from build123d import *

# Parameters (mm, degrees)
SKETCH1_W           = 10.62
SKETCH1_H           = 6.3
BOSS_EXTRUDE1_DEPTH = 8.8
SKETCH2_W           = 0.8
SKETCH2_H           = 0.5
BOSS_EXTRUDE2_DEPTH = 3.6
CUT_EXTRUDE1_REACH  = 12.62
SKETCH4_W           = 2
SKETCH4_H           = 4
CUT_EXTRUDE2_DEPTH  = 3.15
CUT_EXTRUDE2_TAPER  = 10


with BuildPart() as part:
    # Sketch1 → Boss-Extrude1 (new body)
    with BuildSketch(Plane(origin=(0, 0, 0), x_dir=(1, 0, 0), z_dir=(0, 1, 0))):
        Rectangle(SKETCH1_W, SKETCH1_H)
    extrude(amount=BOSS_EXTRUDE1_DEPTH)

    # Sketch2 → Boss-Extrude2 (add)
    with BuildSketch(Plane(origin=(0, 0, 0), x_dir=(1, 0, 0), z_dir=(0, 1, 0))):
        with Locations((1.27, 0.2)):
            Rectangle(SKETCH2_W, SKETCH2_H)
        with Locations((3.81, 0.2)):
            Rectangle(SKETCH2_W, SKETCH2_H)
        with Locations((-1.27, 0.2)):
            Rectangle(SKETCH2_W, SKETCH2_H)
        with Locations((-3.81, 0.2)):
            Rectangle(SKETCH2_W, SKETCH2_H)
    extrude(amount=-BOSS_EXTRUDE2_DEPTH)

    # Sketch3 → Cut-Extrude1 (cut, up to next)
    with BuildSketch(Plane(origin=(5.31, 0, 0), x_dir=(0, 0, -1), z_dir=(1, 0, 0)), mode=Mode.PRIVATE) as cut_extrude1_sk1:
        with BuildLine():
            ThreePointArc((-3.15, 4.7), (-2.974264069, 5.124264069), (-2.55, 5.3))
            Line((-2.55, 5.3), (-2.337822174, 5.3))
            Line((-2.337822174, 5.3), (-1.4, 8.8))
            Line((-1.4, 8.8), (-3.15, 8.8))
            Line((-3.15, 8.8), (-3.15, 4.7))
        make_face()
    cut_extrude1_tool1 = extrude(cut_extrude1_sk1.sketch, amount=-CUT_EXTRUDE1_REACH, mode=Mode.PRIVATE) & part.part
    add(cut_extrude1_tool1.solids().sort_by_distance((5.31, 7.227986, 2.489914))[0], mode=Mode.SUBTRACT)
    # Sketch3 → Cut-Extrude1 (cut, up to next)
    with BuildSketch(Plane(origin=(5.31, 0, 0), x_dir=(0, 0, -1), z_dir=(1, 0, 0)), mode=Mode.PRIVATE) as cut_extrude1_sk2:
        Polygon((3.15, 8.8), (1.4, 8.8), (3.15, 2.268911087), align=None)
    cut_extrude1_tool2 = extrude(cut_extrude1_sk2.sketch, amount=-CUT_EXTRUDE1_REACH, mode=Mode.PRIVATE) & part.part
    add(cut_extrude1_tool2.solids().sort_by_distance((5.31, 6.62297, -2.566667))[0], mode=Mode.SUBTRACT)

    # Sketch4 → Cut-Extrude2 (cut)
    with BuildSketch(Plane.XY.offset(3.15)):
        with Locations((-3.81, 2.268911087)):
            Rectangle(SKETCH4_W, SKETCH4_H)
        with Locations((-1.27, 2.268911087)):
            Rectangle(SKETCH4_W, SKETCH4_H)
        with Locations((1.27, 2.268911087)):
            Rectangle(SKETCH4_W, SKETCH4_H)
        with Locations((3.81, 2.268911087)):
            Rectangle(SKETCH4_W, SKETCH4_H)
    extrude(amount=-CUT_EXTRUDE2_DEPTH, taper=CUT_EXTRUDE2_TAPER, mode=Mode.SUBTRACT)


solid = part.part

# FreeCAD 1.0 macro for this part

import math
import FreeCAD as App
import Part
import Sketcher

V = App.Vector
Q = App.Units.Quantity

doc = App.newDocument("Part")
params = doc.addObject("Spreadsheet::Sheet", "Params")
for row, (alias, value) in enumerate([
    ("sketch1_height", "6.3 mm"),
    ("sketch1_width", "10.62 mm"),
    ("pad1_length", "8.8 mm"),
    ("sketch2_width", "0.8 mm"),
    ("sketch2_height", "0.5 mm"),
    ("pad2_length", "3.6 mm"),
    ("sketch3_radius", "0.6 mm"),
    ("sketch3_width", "4.1 mm"),
    ("sketch3_height", "1.75 mm"),
    ("sketch4_height", "1.75 mm"),
    ("sketch5_width", "2 mm"),
    ("sketch5_height", "4 mm"),
    ("pocket3_length", "3.15 mm"),
    ("pocket3_taper", "-10 deg"),
], start=1):
    params.set(f"A{row}", alias)
    params.set(f"B{row}", "=" + value)
    params.setAlias(f"B{row}", alias)

body = doc.addObject("PartDesign::Body", "Body")

# Sketch on XZ plane
sketch1 = body.newObject("Sketcher::SketchObject", "Sketch")
sketch1.AttachmentSupport = (doc.getObject("XZ_Plane"), [""])
sketch1.MapMode = "FlatFace"
sketch1.addGeometry([
    Part.LineSegment(V(-5.31, -3.15, 0), V(-5.31, 3.15, 0)),
    Part.LineSegment(V(-5.31, 3.15, 0), V(5.31, 3.15, 0)),
    Part.LineSegment(V(5.31, 3.15, 0), V(5.31, -3.15, 0)),
    Part.LineSegment(V(5.31, -3.15, 0), V(-5.31, -3.15, 0)),
], False)
sketch1.addConstraint([
    Sketcher.Constraint("Coincident", 0, 2, 1, 1),
    Sketcher.Constraint("Coincident", 1, 2, 2, 1),
    Sketcher.Constraint("Coincident", 2, 2, 3, 1),
    Sketcher.Constraint("Coincident", 3, 2, 0, 1),
    Sketcher.Constraint("Vertical", 0),
    Sketcher.Constraint("Horizontal", 1),
    Sketcher.Constraint("Vertical", 2),
    Sketcher.Constraint("Horizontal", 3),
    Sketcher.Constraint("Symmetric", 0, 2, 2, 2, -1, 1),
    Sketcher.Constraint("DistanceY", 0, 1, 0, 2, Q("6.3 mm")),
    Sketcher.Constraint("DistanceX", 1, 1, 1, 2, Q("10.62 mm")),
])
sketch1.setExpression("Constraints[9]", "Params.sketch1_height")
sketch1.setExpression("Constraints[10]", "Params.sketch1_width")
pad1 = body.newObject("PartDesign::Pad", "Pad")
pad1.Profile = sketch1
pad1.setExpression("Length", "Params.pad1_length")
pad1.Reversed = True

# Sketch on XZ plane
sketch2 = body.newObject("Sketcher::SketchObject", "Sketch001")
sketch2.AttachmentSupport = (doc.getObject("XZ_Plane"), [""])
sketch2.MapMode = "FlatFace"
sketch2.addGeometry([
    Part.LineSegment(V(0.87, -0.45, 0), V(0.87, 0.05, 0)),  # 0
    Part.LineSegment(V(0.87, 0.05, 0), V(1.67, 0.05, 0)),  # 1
    Part.LineSegment(V(1.67, 0.05, 0), V(1.67, -0.45, 0)),  # 2
    Part.LineSegment(V(1.67, -0.45, 0), V(0.87, -0.45, 0)),  # 3
    Part.LineSegment(V(3.41, -0.45, 0), V(3.41, 0.05, 0)),  # 4
    Part.LineSegment(V(3.41, 0.05, 0), V(4.21, 0.05, 0)),  # 5
    Part.LineSegment(V(4.21, 0.05, 0), V(4.21, -0.45, 0)),  # 6
    Part.LineSegment(V(4.21, -0.45, 0), V(3.41, -0.45, 0)),  # 7
    Part.LineSegment(V(-1.67, -0.45, 0), V(-1.67, 0.05, 0)),  # 8
    Part.LineSegment(V(-1.67, 0.05, 0), V(-0.87, 0.05, 0)),  # 9
    Part.LineSegment(V(-0.87, 0.05, 0), V(-0.87, -0.45, 0)),  # 10
    Part.LineSegment(V(-0.87, -0.45, 0), V(-1.67, -0.45, 0)),  # 11
    Part.LineSegment(V(-4.21, -0.45, 0), V(-4.21, 0.05, 0)),  # 12
    Part.LineSegment(V(-4.21, 0.05, 0), V(-3.41, 0.05, 0)),  # 13
    Part.LineSegment(V(-3.41, 0.05, 0), V(-3.41, -0.45, 0)),  # 14
    Part.LineSegment(V(-3.41, -0.45, 0), V(-4.21, -0.45, 0)),  # 15
], False)
sketch2.addConstraint([
    Sketcher.Constraint("Coincident", 0, 2, 1, 1),
    Sketcher.Constraint("Coincident", 1, 2, 2, 1),
    Sketcher.Constraint("Coincident", 2, 2, 3, 1),
    Sketcher.Constraint("Coincident", 3, 2, 0, 1),
    Sketcher.Constraint("Coincident", 4, 2, 5, 1),
    Sketcher.Constraint("Coincident", 5, 2, 6, 1),
    Sketcher.Constraint("Coincident", 6, 2, 7, 1),
    Sketcher.Constraint("Coincident", 7, 2, 4, 1),
    Sketcher.Constraint("Coincident", 8, 2, 9, 1),
    Sketcher.Constraint("Coincident", 9, 2, 10, 1),
    Sketcher.Constraint("Coincident", 10, 2, 11, 1),
    Sketcher.Constraint("Coincident", 11, 2, 8, 1),
    Sketcher.Constraint("Coincident", 12, 2, 13, 1),
    Sketcher.Constraint("Coincident", 13, 2, 14, 1),
    Sketcher.Constraint("Coincident", 14, 2, 15, 1),
    Sketcher.Constraint("Coincident", 15, 2, 12, 1),
    Sketcher.Constraint("Vertical", 0),
    Sketcher.Constraint("Horizontal", 1),
    Sketcher.Constraint("Vertical", 2),
    Sketcher.Constraint("Horizontal", 3),
    Sketcher.Constraint("Vertical", 4),
    Sketcher.Constraint("Horizontal", 5),
    Sketcher.Constraint("Vertical", 6),
    Sketcher.Constraint("Horizontal", 7),
    Sketcher.Constraint("Vertical", 8),
    Sketcher.Constraint("Horizontal", 9),
    Sketcher.Constraint("Vertical", 10),
    Sketcher.Constraint("Horizontal", 11),
    Sketcher.Constraint("Vertical", 12),
    Sketcher.Constraint("Horizontal", 13),
    Sketcher.Constraint("Vertical", 14),
    Sketcher.Constraint("Horizontal", 15),
    Sketcher.Constraint("Symmetric", 1, 2, 8, 2, -2),
    Sketcher.Constraint("Symmetric", 3, 2, 10, 2, -2),
    Sketcher.Constraint("Symmetric", 5, 2, 12, 2, -2),
    Sketcher.Constraint("Symmetric", 7, 2, 14, 2, -2),
    Sketcher.Constraint("Horizontal", 1, 2, 4, 2),
    Sketcher.Constraint("Horizontal", 3, 2, 6, 2),
    Sketcher.Constraint("Equal", 3, 5),
    Sketcher.Constraint("DistanceX", 1, 1, 1, 2, Q("0.8 mm")),
    Sketcher.Constraint("DistanceY", 0, 1, 0, 2, Q("0.5 mm")),
    Sketcher.Constraint("DistanceX", -1, 1, 0, 2, Q("0.87 mm")),
    Sketcher.Constraint("DistanceY", -1, 1, 0, 2, Q("0.05 mm")),
    Sketcher.Constraint("DistanceX", -1, 1, 4, 2, Q("3.41 mm")),
])
sketch2.setExpression("Constraints[39]", "Params.sketch2_width")
sketch2.setExpression("Constraints[40]", "Params.sketch2_height")
pad2 = body.newObject("PartDesign::Pad", "Pad001")
pad2.Profile = sketch2
pad2.setExpression("Length", "Params.pad2_length")

# Sketch on YZ plane
sketch3 = body.newObject("Sketcher::SketchObject", "Sketch002")
sketch3.AttachmentSupport = (doc.getObject("YZ_Plane"), [""])
sketch3.MapMode = "FlatFace"
sketch3.AttachmentOffset = App.Placement(V(0, 0, 5.31), App.Rotation())
sketch3.addGeometry([
    Part.ArcOfCircle(Part.Circle(V(4.7, 2.55, 0), V(0, 0, 1), 0.6), math.radians(0), math.radians(90)),  # 0
    Part.LineSegment(V(5.3, 2.55, 0), V(5.3, 2.337822, 0)),  # 1
    Part.LineSegment(V(5.3, 2.337822, 0), V(8.8, 1.4, 0)),  # 2
    Part.LineSegment(V(8.8, 1.4, 0), V(8.8, 3.15, 0)),  # 3
    Part.LineSegment(V(8.8, 3.15, 0), V(4.7, 3.15, 0)),  # 4
], False)
sketch3.addConstraint([
    Sketcher.Constraint("Tangent", 0, 1, 1, 1),
    Sketcher.Constraint("Coincident", 1, 2, 2, 1),
    Sketcher.Constraint("Coincident", 2, 2, 3, 1),
    Sketcher.Constraint("Coincident", 3, 2, 4, 1),
    Sketcher.Constraint("Tangent", 4, 2, 0, 2),
    Sketcher.Constraint("Vertical", 1),
    Sketcher.Constraint("Vertical", 3),
    Sketcher.Constraint("Horizontal", 4),
    Sketcher.Constraint("Radius", 0, Q("0.6 mm")),
    Sketcher.Constraint("Angle", 2, Q("-15 deg")),
    Sketcher.Constraint("DistanceX", 4, 2, 4, 1, Q("4.1 mm")),
    Sketcher.Constraint("DistanceY", 3, 1, 3, 2, Q("1.75 mm")),
    Sketcher.Constraint("DistanceX", -1, 1, 0, 3, Q("4.7 mm")),
    Sketcher.Constraint("DistanceY", -1, 1, 2, 2, Q("1.4 mm")),
])
sketch3.setExpression("Constraints[8]", "Params.sketch3_radius")
sketch3.setExpression("Constraints[10]", "Params.sketch3_width")
sketch3.setExpression("Constraints[11]", "Params.sketch3_height")
pocket1 = body.newObject("PartDesign::Pocket", "Pocket")
pocket1.Profile = sketch3
pocket1.Type = "UpToFirst"

# Sketch on YZ plane
sketch4 = body.newObject("Sketcher::SketchObject", "Sketch003")
sketch4.AttachmentSupport = (doc.getObject("YZ_Plane"), [""])
sketch4.MapMode = "FlatFace"
sketch4.AttachmentOffset = App.Placement(V(0, 0, 5.31), App.Rotation())
sketch4.addGeometry([
    Part.LineSegment(V(8.8, -3.15, 0), V(8.8, -1.4, 0)),
    Part.LineSegment(V(8.8, -1.4, 0), V(2.268911, -3.15, 0)),
    Part.LineSegment(V(2.268911, -3.15, 0), V(8.8, -3.15, 0)),
], False)
sketch4.addConstraint([
    Sketcher.Constraint("Coincident", 0, 2, 1, 1),
    Sketcher.Constraint("Coincident", 1, 2, 2, 1),
    Sketcher.Constraint("Coincident", 2, 2, 0, 1),
    Sketcher.Constraint("Vertical", 0),
    Sketcher.Constraint("Horizontal", 2),
    Sketcher.Constraint("Angle", 1, Q("-165 deg")),
    Sketcher.Constraint("DistanceY", 0, 1, 0, 2, Q("1.75 mm")),
    Sketcher.Constraint("DistanceX", -1, 1, 0, 2, Q("8.8 mm")),
    Sketcher.Constraint("DistanceY", 0, 2, -1, 1, Q("1.4 mm")),
])
sketch4.setExpression("Constraints[6]", "Params.sketch4_height")
pocket2 = body.newObject("PartDesign::Pocket", "Pocket001")
pocket2.Profile = sketch4
pocket2.Type = "UpToFirst"

# Sketch on XY plane
sketch5 = body.newObject("Sketcher::SketchObject", "Sketch004")
sketch5.AttachmentSupport = (doc.getObject("XY_Plane"), [""])
sketch5.MapMode = "FlatFace"
sketch5.AttachmentOffset = App.Placement(V(0, 0, 3.15), App.Rotation())
sketch5.addGeometry([
    Part.LineSegment(V(-4.81, 4.268911, 0), V(-4.81, 0.268911, 0)),  # 0
    Part.LineSegment(V(-4.81, 0.268911, 0), V(-2.81, 0.268911, 0)),  # 1
    Part.LineSegment(V(-2.81, 0.268911, 0), V(-2.81, 4.268911, 0)),  # 2
    Part.LineSegment(V(-2.81, 4.268911, 0), V(-4.81, 4.268911, 0)),  # 3
    Part.LineSegment(V(-2.27, 4.268911, 0), V(-2.27, 0.268911, 0)),  # 4
    Part.LineSegment(V(-2.27, 0.268911, 0), V(-0.27, 0.268911, 0)),  # 5
    Part.LineSegment(V(-0.27, 0.268911, 0), V(-0.27, 4.268911, 0)),  # 6
    Part.LineSegment(V(-0.27, 4.268911, 0), V(-2.27, 4.268911, 0)),  # 7
    Part.LineSegment(V(0.27, 4.268911, 0), V(0.27, 0.268911, 0)),  # 8
    Part.LineSegment(V(0.27, 0.268911, 0), V(2.27, 0.268911, 0)),  # 9
    Part.LineSegment(V(2.27, 0.268911, 0), V(2.27, 4.268911, 0)),  # 10
    Part.LineSegment(V(2.27, 4.268911, 0), V(0.27, 4.268911, 0)),  # 11
    Part.LineSegment(V(2.81, 4.268911, 0), V(2.81, 0.268911, 0)),  # 12
    Part.LineSegment(V(2.81, 0.268911, 0), V(4.81, 0.268911, 0)),  # 13
    Part.LineSegment(V(4.81, 0.268911, 0), V(4.81, 4.268911, 0)),  # 14
    Part.LineSegment(V(4.81, 4.268911, 0), V(2.81, 4.268911, 0)),  # 15
], False)
sketch5.addConstraint([
    Sketcher.Constraint("Coincident", 0, 2, 1, 1),
    Sketcher.Constraint("Coincident", 1, 2, 2, 1),
    Sketcher.Constraint("Coincident", 2, 2, 3, 1),
    Sketcher.Constraint("Coincident", 3, 2, 0, 1),
    Sketcher.Constraint("Coincident", 4, 2, 5, 1),
    Sketcher.Constraint("Coincident", 5, 2, 6, 1),
    Sketcher.Constraint("Coincident", 6, 2, 7, 1),
    Sketcher.Constraint("Coincident", 7, 2, 4, 1),
    Sketcher.Constraint("Coincident", 8, 2, 9, 1),
    Sketcher.Constraint("Coincident", 9, 2, 10, 1),
    Sketcher.Constraint("Coincident", 10, 2, 11, 1),
    Sketcher.Constraint("Coincident", 11, 2, 8, 1),
    Sketcher.Constraint("Coincident", 12, 2, 13, 1),
    Sketcher.Constraint("Coincident", 13, 2, 14, 1),
    Sketcher.Constraint("Coincident", 14, 2, 15, 1),
    Sketcher.Constraint("Coincident", 15, 2, 12, 1),
    Sketcher.Constraint("Vertical", 0),
    Sketcher.Constraint("Horizontal", 1),
    Sketcher.Constraint("Vertical", 2),
    Sketcher.Constraint("Horizontal", 3),
    Sketcher.Constraint("Vertical", 4),
    Sketcher.Constraint("Horizontal", 5),
    Sketcher.Constraint("Vertical", 6),
    Sketcher.Constraint("Horizontal", 7),
    Sketcher.Constraint("Vertical", 8),
    Sketcher.Constraint("Horizontal", 9),
    Sketcher.Constraint("Vertical", 10),
    Sketcher.Constraint("Horizontal", 11),
    Sketcher.Constraint("Vertical", 12),
    Sketcher.Constraint("Horizontal", 13),
    Sketcher.Constraint("Vertical", 14),
    Sketcher.Constraint("Horizontal", 15),
    Sketcher.Constraint("Symmetric", 5, 2, 8, 2, -2),
    Sketcher.Constraint("Symmetric", 7, 2, 10, 2, -2),
    Sketcher.Constraint("Symmetric", 1, 2, 12, 2, -2),
    Sketcher.Constraint("Symmetric", 3, 2, 14, 2, -2),
    Sketcher.Constraint("Horizontal", 1, 2, 4, 2),
    Sketcher.Constraint("Horizontal", 3, 2, 6, 2),
    Sketcher.Constraint("Equal", 3, 5),
    Sketcher.Constraint("DistanceX", 1, 1, 1, 2, Q("2 mm")),
    Sketcher.Constraint("DistanceY", 0, 2, 0, 1, Q("4 mm")),
    Sketcher.Constraint("DistanceX", 0, 2, -1, 1, Q("4.81 mm")),
    Sketcher.Constraint("DistanceX", 4, 2, -1, 1, Q("2.27 mm")),
    Sketcher.Constraint("DistanceY", -1, 1, 0, 2, Q("0.268911 mm")),
])
sketch5.setExpression("Constraints[39]", "Params.sketch5_width")
sketch5.setExpression("Constraints[40]", "Params.sketch5_height")
pocket3 = body.newObject("PartDesign::Pocket", "Pocket002")
pocket3.Profile = sketch5
pocket3.setExpression("Length", "Params.pocket3_length")
pocket3.setExpression("TaperAngle", "Params.pocket3_taper")

doc.recompute()
